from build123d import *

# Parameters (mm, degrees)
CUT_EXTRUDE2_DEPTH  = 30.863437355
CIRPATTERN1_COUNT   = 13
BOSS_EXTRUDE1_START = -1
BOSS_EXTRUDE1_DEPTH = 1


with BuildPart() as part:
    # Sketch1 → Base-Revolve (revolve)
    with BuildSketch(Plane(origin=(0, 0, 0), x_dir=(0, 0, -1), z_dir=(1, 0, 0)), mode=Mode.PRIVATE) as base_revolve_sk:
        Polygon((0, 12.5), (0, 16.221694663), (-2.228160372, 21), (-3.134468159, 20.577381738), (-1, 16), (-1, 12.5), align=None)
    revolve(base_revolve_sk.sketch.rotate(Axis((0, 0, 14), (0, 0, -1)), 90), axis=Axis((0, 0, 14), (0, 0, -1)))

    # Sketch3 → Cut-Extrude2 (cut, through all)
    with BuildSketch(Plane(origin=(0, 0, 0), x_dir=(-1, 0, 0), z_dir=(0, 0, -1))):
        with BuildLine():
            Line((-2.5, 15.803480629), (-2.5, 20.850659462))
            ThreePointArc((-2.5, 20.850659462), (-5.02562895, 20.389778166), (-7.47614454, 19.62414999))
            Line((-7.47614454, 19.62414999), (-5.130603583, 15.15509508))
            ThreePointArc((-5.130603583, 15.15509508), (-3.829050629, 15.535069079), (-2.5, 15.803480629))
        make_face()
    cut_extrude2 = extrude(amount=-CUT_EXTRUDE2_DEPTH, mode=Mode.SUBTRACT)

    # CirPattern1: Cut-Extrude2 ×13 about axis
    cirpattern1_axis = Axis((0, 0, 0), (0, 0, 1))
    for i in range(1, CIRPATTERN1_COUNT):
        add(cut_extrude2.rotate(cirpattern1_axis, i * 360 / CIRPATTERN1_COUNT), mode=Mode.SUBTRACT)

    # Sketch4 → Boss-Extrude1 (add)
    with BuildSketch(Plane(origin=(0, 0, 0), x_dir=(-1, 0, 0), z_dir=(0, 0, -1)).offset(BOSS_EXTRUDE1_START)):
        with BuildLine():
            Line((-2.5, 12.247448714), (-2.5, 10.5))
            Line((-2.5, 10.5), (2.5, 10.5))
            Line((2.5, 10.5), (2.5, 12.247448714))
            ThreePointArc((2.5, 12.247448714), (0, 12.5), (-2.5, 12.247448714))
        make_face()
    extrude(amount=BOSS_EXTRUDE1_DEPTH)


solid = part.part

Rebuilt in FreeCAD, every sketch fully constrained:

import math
import FreeCAD as App
import Part
import Sketcher
Q = App.Units.Quantity


def add_polygon(sketch, points):
    """Adds a closed chain of lines whose ends are joined by coincident constraints."""
    first, n = sketch.GeometryCount, len(points)
    for a, b in zip(points, points[1:] + points[:1]):
        sketch.addGeometry(Part.LineSegment(App.Vector(*a, 0), App.Vector(*b, 0)), False)
    for i in range(n):
        sketch.addConstraint(Sketcher.Constraint("Coincident", first + i, 2, first + (i + 1) % n, 1))

doc = App.newDocument("Part")
body = doc.addObject("PartDesign::Body", "Body")

# Sketch on YZ plane
sketch1 = body.newObject("Sketcher::SketchObject", "Sketch")
sketch1.AttachmentSupport = (doc.getObject("YZ_Plane"), [""])
sketch1.MapMode = "FlatFace"
add_polygon(sketch1, [(12.5, 0), (16.2, 0), (21, 2.2), (20.6, 3.1), (16, 1), (12.5, 1)])  # lines 0-5
sketch1.addConstraint([
    Sketcher.Constraint("Horizontal", 0),
    Sketcher.Constraint("Horizontal", 4),
    Sketcher.Constraint("Vertical", 5),
    Sketcher.Constraint("PointOnObject", 0, 2, -1),
    Sketcher.Constraint("Perpendicular", 1, 2),
    Sketcher.Constraint("Perpendicular", 2, 3),
    Sketcher.Constraint("DistanceY", 5, 2, 5, 1, Q("1 mm")),
    Sketcher.Constraint("Angle", 1, Q("25 deg")),
    Sketcher.Constraint("Distance", 2, Q("1 mm")),
    Sketcher.Constraint("DistanceX", 4, 2, 4, 1, Q("3.5 mm")),
    Sketcher.Constraint("DistanceX", -1, 1, 1, 2, Q("21 mm")),
    Sketcher.Constraint("DistanceX", -1, 1, 3, 2, Q("16 mm")),
])
revolution = body.newObject("PartDesign::Revolution", "Revolution")
revolution.Profile = sketch1
revolution.ReferenceAxis = (sketch1, ["V_Axis"])
revolution.Angle = 360

# Sketch on XY plane
sketch2 = body.newObject("Sketcher::SketchObject", "Sketch001")
sketch2.AttachmentSupport = (doc.getObject("XY_Plane"), [""])
sketch2.MapMode = "FlatFace"
sketch2.addGeometry([
    Part.LineSegment(App.Vector(2.5, 15.8, 0), App.Vector(2.5, 20.9, 0)),
    Part.ArcOfCircle(Part.Circle(App.Vector(0, 0, 0), App.Vector(0, 0, 1), 21), math.radians(69.14), math.radians(83.16)),
    Part.LineSegment(App.Vector(7.5, 19.6, 0), App.Vector(5.1, 15.2, 0)),
    Part.ArcOfCircle(Part.Circle(App.Vector(0, 0, 0), App.Vector(0, 0, 1), 16), math.radians(71.3), math.radians(81.01)),
], False)
sketch2.addConstraint([
    Sketcher.Constraint("Coincident", 0, 2, 1, 2),
    Sketcher.Constraint("Coincident", 1, 1, 2, 1),
    Sketcher.Constraint("Coincident", 2, 2, 3, 1),
    Sketcher.Constraint("Coincident", 3, 2, 0, 1),
    Sketcher.Constraint("Vertical", 0),
    Sketcher.Constraint("Coincident", 1, 3, -1, 1),
    Sketcher.Constraint("Coincident", 3, 3, -1, 1),
    Sketcher.Constraint("Radius", 1, Q("21 mm")),
    Sketcher.Constraint("Radius", 3, Q("16 mm")),
    Sketcher.Constraint("DistanceX", -1, 1, 0, 2, Q("2.5 mm")),
    Sketcher.Constraint("Distance", 2, Q("5.047179 mm")),
    Sketcher.Constraint("DistanceY", -1, 1, 1, 1, Q("19.62415 mm")),
])
pocket1 = body.newObject("PartDesign::Pocket", "Pocket")
pocket1.Profile = sketch2
pocket1.Type = "ThroughAll"
pocket1.Reversed = True
doc.recompute()

polarpattern = body.newObject("PartDesign::PolarPattern", "PolarPattern")
polarpattern.Originals = [pocket1]
polarpattern.Axis = (doc.getObject("Z_Axis"), [""])
polarpattern.Angle = 360
polarpattern.Occurrences = 13
body.Tip = polarpattern

# Sketch on XY plane
sketch3 = body.newObject("Sketcher::SketchObject", "Sketch002")
sketch3.AttachmentSupport = (doc.getObject("XY_Plane"), [""])
sketch3.MapMode = "FlatFace"
sketch3.AttachmentOffset = App.Placement(App.Vector(0, 0, 1), App.Rotation())
sketch3.addGeometry([
    Part.LineSegment(App.Vector(2.5, 12.2, 0), App.Vector(2.5, 10.5, 0)),
    Part.LineSegment(App.Vector(2.5, 10.5, 0), App.Vector(-2.5, 10.5, 0)),
    Part.LineSegment(App.Vector(-2.5, 10.5, 0), App.Vector(-2.5, 12.2, 0)),
    Part.ArcOfCircle(Part.Circle(App.Vector(0, 0, 0), App.Vector(0, 0, 1), 12.5), math.radians(78), math.radians(102)),
], False)
sketch3.addConstraint([
    Sketcher.Constraint("Coincident", 0, 2, 1, 1),
    Sketcher.Constraint("Coincident", 1, 2, 2, 1),
    Sketcher.Constraint("Coincident", 2, 2, 3, 2),
    Sketcher.Constraint("Coincident", 3, 1, 0, 1),
    Sketcher.Constraint("Vertical", 0),
    Sketcher.Constraint("Horizontal", 1),
    Sketcher.Constraint("Vertical", 2),
    Sketcher.Constraint("Coincident", 3, 3, -1, 1),
    Sketcher.Constraint("Horizontal", 2, 2, 3, 1),
    Sketcher.Constraint("Radius", 3, Q("12.5 mm")),
    Sketcher.Constraint("DistanceX", 1, 2, 1, 1, Q("5 mm")),
    Sketcher.Constraint("DistanceY", -1, 1, 0, 2, Q("10.5 mm")),
])
pad1 = body.newObject("PartDesign::Pad", "Pad")
pad1.Profile = sketch3
pad1.Length = 1
pad1.Reversed = True

doc.recompute()
